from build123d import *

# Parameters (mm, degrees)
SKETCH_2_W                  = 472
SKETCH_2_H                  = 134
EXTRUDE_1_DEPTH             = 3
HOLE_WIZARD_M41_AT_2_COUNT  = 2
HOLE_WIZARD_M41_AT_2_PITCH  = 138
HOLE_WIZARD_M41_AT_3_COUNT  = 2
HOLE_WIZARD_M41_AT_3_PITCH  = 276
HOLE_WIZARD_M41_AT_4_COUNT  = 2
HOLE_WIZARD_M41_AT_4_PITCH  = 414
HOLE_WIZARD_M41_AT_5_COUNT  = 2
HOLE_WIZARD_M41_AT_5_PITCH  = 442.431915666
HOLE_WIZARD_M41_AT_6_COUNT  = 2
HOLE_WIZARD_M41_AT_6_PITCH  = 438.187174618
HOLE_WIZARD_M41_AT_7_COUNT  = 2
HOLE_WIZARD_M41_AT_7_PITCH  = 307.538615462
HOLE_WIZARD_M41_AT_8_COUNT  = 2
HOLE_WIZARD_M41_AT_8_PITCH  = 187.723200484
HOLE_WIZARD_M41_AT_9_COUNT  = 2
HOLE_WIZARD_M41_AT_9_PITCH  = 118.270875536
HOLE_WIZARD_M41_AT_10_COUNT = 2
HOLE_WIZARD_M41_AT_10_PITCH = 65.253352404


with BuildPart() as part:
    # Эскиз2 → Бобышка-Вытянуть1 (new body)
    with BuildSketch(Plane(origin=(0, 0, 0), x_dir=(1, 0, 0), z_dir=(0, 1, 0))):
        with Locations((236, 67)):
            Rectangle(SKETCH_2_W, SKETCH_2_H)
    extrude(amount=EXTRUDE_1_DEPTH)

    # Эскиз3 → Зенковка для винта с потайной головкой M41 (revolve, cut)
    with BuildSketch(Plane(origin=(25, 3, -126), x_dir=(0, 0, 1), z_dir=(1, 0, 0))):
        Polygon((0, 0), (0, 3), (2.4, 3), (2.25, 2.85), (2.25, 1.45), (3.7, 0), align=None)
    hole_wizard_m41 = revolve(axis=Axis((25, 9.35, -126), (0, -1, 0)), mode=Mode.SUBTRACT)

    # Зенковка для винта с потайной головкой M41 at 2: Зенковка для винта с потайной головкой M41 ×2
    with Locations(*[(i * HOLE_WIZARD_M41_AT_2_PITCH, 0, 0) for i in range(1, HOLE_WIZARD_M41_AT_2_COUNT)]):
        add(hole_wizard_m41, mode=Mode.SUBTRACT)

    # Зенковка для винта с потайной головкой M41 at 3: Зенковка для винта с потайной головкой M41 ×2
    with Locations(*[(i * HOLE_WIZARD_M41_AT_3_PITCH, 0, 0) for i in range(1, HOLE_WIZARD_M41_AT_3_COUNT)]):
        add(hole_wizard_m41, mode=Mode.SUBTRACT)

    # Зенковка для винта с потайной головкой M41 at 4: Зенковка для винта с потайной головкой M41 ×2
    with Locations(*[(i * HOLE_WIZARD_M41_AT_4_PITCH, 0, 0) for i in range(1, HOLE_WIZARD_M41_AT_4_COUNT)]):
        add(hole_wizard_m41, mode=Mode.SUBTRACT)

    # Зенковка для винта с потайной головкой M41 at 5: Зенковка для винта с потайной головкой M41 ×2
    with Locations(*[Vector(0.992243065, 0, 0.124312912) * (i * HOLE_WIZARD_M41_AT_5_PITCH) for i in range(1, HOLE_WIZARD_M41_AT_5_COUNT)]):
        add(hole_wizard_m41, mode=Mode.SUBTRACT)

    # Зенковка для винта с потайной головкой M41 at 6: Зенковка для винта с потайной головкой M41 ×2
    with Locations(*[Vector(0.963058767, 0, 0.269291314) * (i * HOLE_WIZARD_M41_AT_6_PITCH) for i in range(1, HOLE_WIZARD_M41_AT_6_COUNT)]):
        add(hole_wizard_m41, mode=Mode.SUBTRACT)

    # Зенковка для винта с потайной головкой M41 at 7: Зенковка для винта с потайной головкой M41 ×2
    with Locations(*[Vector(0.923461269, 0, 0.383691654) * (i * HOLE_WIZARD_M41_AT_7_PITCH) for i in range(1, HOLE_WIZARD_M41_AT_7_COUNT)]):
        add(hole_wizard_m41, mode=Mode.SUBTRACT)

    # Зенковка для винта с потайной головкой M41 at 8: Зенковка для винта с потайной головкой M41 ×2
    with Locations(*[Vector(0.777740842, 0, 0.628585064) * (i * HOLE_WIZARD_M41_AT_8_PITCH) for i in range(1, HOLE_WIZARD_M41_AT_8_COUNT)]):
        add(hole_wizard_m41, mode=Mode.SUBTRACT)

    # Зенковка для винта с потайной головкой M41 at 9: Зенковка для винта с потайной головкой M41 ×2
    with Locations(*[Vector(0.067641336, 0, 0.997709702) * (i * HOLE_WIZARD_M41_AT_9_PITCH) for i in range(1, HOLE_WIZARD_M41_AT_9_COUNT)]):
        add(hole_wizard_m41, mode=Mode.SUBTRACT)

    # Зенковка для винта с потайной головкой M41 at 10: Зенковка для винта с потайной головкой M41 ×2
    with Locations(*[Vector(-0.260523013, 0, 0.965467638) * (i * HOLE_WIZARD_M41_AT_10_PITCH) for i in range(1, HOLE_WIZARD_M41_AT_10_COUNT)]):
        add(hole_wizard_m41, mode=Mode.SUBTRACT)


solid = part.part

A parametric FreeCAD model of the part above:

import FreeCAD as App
import Part
import Sketcher
Q = App.Units.Quantity

doc = App.newDocument("Part")
body = doc.addObject("PartDesign::Body", "Body")

# Sketch on XZ plane
sketch1 = doc.addObject("Sketcher::SketchObject", "Sketch")
body.addObject(sketch1)
sketch1.AttachmentSupport = (doc.XZ_Plane, [""])
sketch1.MapMode = "FlatFace"
sketch1.addGeometry([
    Part.LineSegment(App.Vector(0, -134, 0), App.Vector(0, 0, 0)),
    Part.LineSegment(App.Vector(0, 0, 0), App.Vector(472, 0, 0)),
    Part.LineSegment(App.Vector(472, 0, 0), App.Vector(472, -134, 0)),
    Part.LineSegment(App.Vector(472, -134, 0), App.Vector(0, -134, 0)),
], False)
sketch1.addConstraint([
    Sketcher.Constraint("Coincident", 0, 2, 1, 1),
    Sketcher.Constraint("Coincident", 1, 2, 2, 1),
    Sketcher.Constraint("Coincident", 2, 2, 3, 1),
    Sketcher.Constraint("Coincident", 3, 2, 0, 1),
    Sketcher.Constraint("Vertical", 0),
    Sketcher.Constraint("Horizontal", 1),
    Sketcher.Constraint("Vertical", 2),
    Sketcher.Constraint("Horizontal", 3),
    Sketcher.Constraint("Coincident", 0, 2, -1, 1),
    Sketcher.Constraint("DistanceX", 1, 1, 1, 2, 472.0),
    Sketcher.Constraint("DistanceY", 0, 1, 0, 2, 134.0),
])
pad1 = doc.addObject("PartDesign::Pad", "Pad")
body.addObject(pad1)
pad1.Profile = sketch1
pad1.Length = 3
pad1.Reversed = True

# Sketch on YZ plane
sketch2 = doc.addObject("Sketcher::SketchObject", "Sketch001")
body.addObject(sketch2)
sketch2.AttachmentSupport = (doc.YZ_Plane, [""])
sketch2.MapMode = "FlatFace"
sketch2.AttachmentOffset = App.Placement(App.Vector(0, 0, 25), App.Rotation())
sketch2.addGeometry([
    Part.LineSegment(App.Vector(0, -126, 0), App.Vector(3, -126, 0)),  # 0
    Part.LineSegment(App.Vector(3, -126, 0), App.Vector(3, -122.3, 0)),  # 1
    Part.LineSegment(App.Vector(3, -122.3, 0), App.Vector(1.55, -123.75, 0)),  # 2
    Part.LineSegment(App.Vector(1.55, -123.75, 0), App.Vector(0.15, -123.75, 0)),  # 3
    Part.LineSegment(App.Vector(0.15, -123.75, 0), App.Vector(0, -123.6, 0)),  # 4
    Part.LineSegment(App.Vector(0, -123.6, 0), App.Vector(0, -126, 0)),  # 5
], False)
sketch2.addGeometry(Part.LineSegment(App.Vector(3, -126, 0), App.Vector(0, -126, 0)), True)  # axis
sketch2.addConstraint([
    Sketcher.Constraint("Coincident", 0, 2, 1, 1),
    Sketcher.Constraint("Coincident", 1, 2, 2, 1),
    Sketcher.Constraint("Coincident", 2, 2, 3, 1),
    Sketcher.Constraint("Coincident", 3, 2, 4, 1),
    Sketcher.Constraint("Coincident", 4, 2, 5, 1),
    Sketcher.Constraint("Coincident", 5, 2, 0, 1),
    Sketcher.Constraint("Horizontal", 0),
    Sketcher.Constraint("Vertical", 1),
    Sketcher.Constraint("Horizontal", 3),
    Sketcher.Constraint("Vertical", 5),
    Sketcher.Constraint("Horizontal", 6),
    Sketcher.Constraint("Coincident", 6, 1, 0, 2),
    Sketcher.Constraint("PointOnObject", 4, 2, -2),
    Sketcher.Constraint("PointOnObject", 6, 2, -2),
    Sketcher.Constraint("Perpendicular", 2, 4),
    Sketcher.Constraint("DistanceX", 0, 1, 0, 2, 3.0),
    Sketcher.Constraint("Angle", 2, Q("-135 deg")),
    Sketcher.Constraint("DistanceX", 3, 2, 3, 1, 1.4),
    Sketcher.Constraint("DistanceY", 1, 1, 1, 2, 3.7),
    Sketcher.Constraint("DistanceY", 5, 2, 5, 1, 2.4),
    Sketcher.Constraint("DistanceY", 0, 2, -1, 1, 126.0),
])
groove = doc.addObject("PartDesign::Groove", "Groove")
body.addObject(groove)
groove.Profile = sketch2
groove.ReferenceAxis = (sketch2, ["Axis0"])
groove.Angle = 360
doc.recompute()

linearpattern = doc.addObject("PartDesign::LinearPattern", "LinearPattern")
body.addObject(linearpattern)
linearpattern.Originals = [groove]
linearpattern.Direction = (doc.X_Axis, [""])
linearpattern.Mode = "offset"
linearpattern.Offset = 138
linearpattern.Occurrences = 2
body.Tip = linearpattern
doc.recompute()

linearpattern2 = doc.addObject("PartDesign::LinearPattern", "LinearPattern001")
body.addObject(linearpattern2)
linearpattern2.Originals = [groove]
linearpattern2.Direction = (doc.X_Axis, [""])
linearpattern2.Mode = "offset"
linearpattern2.Offset = 276
linearpattern2.Occurrences = 2
body.Tip = linearpattern2
doc.recompute()

linearpattern3 = doc.addObject("PartDesign::LinearPattern", "LinearPattern002")
body.addObject(linearpattern3)
linearpattern3.Originals = [groove]
linearpattern3.Direction = (doc.X_Axis, [""])
linearpattern3.Mode = "offset"
linearpattern3.Offset = 414
linearpattern3.Occurrences = 2
body.Tip = linearpattern3
doc.recompute()

datumline = doc.addObject("PartDesign::Line", "DatumLine")
body.addObject(datumline)
datumline.Placement = App.Placement(App.Vector(0, 0, 0), App.Rotation(App.Vector(0, 0, 1), App.Vector(0.992243065, 0, 0.124312912)))
linearpattern4 = doc.addObject("PartDesign::LinearPattern", "LinearPattern003")
body.addObject(linearpattern4)
linearpattern4.Originals = [groove]
linearpattern4.Direction = (datumline, [""])
linearpattern4.Mode = "offset"
linearpattern4.Offset = 442.431916
linearpattern4.Occurrences = 2
body.Tip = linearpattern4
doc.recompute()

datumline2 = doc.addObject("PartDesign::Line", "DatumLine001")
body.addObject(datumline2)
datumline2.Placement = App.Placement(App.Vector(0, 0, 0), App.Rotation(App.Vector(0, 0, 1), App.Vector(0.963058767, 0, 0.269291314)))
linearpattern5 = doc.addObject("PartDesign::LinearPattern", "LinearPattern004")
body.addObject(linearpattern5)
linearpattern5.Originals = [groove]
linearpattern5.Direction = (datumline2, [""])
linearpattern5.Mode = "offset"
linearpattern5.Offset = 438.187175
linearpattern5.Occurrences = 2
body.Tip = linearpattern5
doc.recompute()

datumline3 = doc.addObject("PartDesign::Line", "DatumLine002")
body.addObject(datumline3)
datumline3.Placement = App.Placement(App.Vector(0, 0, 0), App.Rotation(App.Vector(0, 0, 1), App.Vector(0.923461269, 0, 0.383691654)))
linearpattern6 = doc.addObject("PartDesign::LinearPattern", "LinearPattern005")
body.addObject(linearpattern6)
linearpattern6.Originals = [groove]
linearpattern6.Direction = (datumline3, [""])
linearpattern6.Mode = "offset"
linearpattern6.Offset = 307.538616
linearpattern6.Occurrences = 2
body.Tip = linearpattern6
doc.recompute()

datumline4 = doc.addObject("PartDesign::Line", "DatumLine003")
body.addObject(datumline4)
datumline4.Placement = App.Placement(App.Vector(0, 0, 0), App.Rotation(App.Vector(0, 0, 1), App.Vector(0.777740842, 0, 0.628585064)))
linearpattern7 = doc.addObject("PartDesign::LinearPattern", "LinearPattern006")
body.addObject(linearpattern7)
linearpattern7.Originals = [groove]
linearpattern7.Direction = (datumline4, [""])
linearpattern7.Mode = "offset"
linearpattern7.Offset = 187.7232
linearpattern7.Occurrences = 2
body.Tip = linearpattern7
doc.recompute()

datumline5 = doc.addObject("PartDesign::Line", "DatumLine004")
body.addObject(datumline5)
datumline5.Placement = App.Placement(App.Vector(0, 0, 0), App.Rotation(App.Vector(0, 0, 1), App.Vector(0.067641336, 0, 0.997709702)))
linearpattern8 = doc.addObject("PartDesign::LinearPattern", "LinearPattern007")
body.addObject(linearpattern8)
linearpattern8.Originals = [groove]
linearpattern8.Direction = (datumline5, [""])
linearpattern8.Mode = "offset"
linearpattern8.Offset = 118.270876
linearpattern8.Occurrences = 2
body.Tip = linearpattern8
doc.recompute()

datumline6 = doc.addObject("PartDesign::Line", "DatumLine005")
body.addObject(datumline6)
datumline6.Placement = App.Placement(App.Vector(0, 0, 0), App.Rotation(App.Vector(0, 0, 1), App.Vector(-0.260523013, 0, 0.965467638)))
linearpattern9 = doc.addObject("PartDesign::LinearPattern", "LinearPattern008")
body.addObject(linearpattern9)
linearpattern9.Originals = [groove]
linearpattern9.Direction = (datumline6, [""])
linearpattern9.Mode = "offset"
linearpattern9.Offset = 65.253352
linearpattern9.Occurrences = 2
body.Tip = linearpattern9

doc.recompute()
